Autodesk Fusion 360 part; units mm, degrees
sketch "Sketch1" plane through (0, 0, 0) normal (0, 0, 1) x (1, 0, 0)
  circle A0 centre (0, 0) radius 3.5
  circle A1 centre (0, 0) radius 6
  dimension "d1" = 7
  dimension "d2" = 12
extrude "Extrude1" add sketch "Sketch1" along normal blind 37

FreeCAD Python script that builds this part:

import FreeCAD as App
import Part
import Sketcher

doc = App.newDocument("Part")
body = doc.addObject("PartDesign::Body", "Body")

sketch1 = body.newObject("Sketcher::SketchObject", "Sketch")
sketch1.AttachmentSupport = (doc.getObject("XY_Plane"), [""])
sketch1.MapMode = "FlatFace"
sketch1.addGeometry([
    Part.Circle(App.Vector(0, 0, 0), App.Vector(0, 0, 1), 6),
    Part.Circle(App.Vector(0, 0, 0), App.Vector(0, 0, 1), 3.5),
], False)
sketch1.addConstraint([
    Sketcher.Constraint("Coincident", 0, 3, -1, 1),
    Sketcher.Constraint("Coincident", 1, 3, -1, 1),
    Sketcher.Constraint("Diameter", 0, 12.0),
    Sketcher.Constraint("Diameter", 1, 7.0),
])
pad1 = body.newObject("PartDesign::Pad", "Pad")
pad1.Profile = sketch1
pad1.Length = 37

doc.recompute()
